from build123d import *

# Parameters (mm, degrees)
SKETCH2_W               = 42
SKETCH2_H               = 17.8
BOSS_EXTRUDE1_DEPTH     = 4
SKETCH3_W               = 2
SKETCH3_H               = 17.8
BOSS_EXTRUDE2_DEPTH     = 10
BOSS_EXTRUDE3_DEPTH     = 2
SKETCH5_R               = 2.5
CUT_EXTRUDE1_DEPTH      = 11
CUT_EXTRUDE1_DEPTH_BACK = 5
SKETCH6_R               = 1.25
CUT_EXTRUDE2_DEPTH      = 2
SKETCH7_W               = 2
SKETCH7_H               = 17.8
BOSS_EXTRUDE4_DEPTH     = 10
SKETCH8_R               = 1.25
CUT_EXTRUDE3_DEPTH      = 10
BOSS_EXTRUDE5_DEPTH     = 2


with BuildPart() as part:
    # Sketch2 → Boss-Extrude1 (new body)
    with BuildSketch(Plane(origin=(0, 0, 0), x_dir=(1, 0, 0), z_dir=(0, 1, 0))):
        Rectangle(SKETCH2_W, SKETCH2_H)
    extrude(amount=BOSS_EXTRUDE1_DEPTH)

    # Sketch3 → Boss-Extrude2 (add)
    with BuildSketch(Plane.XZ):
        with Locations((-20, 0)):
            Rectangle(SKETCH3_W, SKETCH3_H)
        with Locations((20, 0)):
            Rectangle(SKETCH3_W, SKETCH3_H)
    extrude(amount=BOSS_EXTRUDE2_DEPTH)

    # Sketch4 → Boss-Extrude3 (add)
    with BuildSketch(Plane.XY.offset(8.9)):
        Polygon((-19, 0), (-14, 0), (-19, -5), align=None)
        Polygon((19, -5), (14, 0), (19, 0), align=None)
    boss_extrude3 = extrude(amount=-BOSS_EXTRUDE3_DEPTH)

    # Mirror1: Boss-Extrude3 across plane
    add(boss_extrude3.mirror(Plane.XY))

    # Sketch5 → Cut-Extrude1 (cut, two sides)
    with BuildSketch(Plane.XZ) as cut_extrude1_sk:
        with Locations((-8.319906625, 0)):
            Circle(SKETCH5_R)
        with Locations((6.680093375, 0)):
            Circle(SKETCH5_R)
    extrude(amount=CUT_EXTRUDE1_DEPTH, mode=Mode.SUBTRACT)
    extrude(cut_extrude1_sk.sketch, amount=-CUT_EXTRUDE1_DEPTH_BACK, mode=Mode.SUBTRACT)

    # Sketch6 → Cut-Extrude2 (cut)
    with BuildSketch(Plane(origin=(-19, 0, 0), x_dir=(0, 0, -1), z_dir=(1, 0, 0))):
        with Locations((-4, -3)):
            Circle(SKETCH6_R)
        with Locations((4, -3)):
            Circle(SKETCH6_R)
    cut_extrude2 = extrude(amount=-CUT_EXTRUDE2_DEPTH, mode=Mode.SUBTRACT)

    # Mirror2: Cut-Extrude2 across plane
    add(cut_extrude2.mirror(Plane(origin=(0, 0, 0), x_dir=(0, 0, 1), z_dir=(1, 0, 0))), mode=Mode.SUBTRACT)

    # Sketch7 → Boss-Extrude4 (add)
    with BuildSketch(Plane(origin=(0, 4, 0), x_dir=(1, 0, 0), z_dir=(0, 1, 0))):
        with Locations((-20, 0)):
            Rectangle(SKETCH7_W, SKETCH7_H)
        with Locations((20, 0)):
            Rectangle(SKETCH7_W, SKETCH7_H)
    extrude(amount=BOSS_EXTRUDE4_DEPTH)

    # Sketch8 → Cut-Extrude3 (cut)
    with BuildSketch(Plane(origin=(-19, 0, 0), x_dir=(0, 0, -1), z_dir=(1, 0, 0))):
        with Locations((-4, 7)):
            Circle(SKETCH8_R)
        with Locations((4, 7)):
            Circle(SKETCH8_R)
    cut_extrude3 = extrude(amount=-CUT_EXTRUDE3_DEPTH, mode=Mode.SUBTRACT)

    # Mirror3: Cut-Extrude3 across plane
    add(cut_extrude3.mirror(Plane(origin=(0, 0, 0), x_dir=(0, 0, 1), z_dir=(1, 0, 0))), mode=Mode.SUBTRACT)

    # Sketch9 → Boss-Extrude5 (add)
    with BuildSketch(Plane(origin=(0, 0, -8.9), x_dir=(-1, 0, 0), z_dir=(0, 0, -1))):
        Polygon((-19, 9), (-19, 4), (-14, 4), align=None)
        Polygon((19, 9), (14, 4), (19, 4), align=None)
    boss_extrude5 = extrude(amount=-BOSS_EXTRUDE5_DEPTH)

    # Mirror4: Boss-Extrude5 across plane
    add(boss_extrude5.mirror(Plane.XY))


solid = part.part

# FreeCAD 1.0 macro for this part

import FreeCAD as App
import Part
import Sketcher
from FreeCAD import Vector

doc = App.newDocument("Part")
body = doc.addObject("PartDesign::Body", "Body")

sketch1 = body.newObject("Sketcher::SketchObject", "Sketch")
sketch1.AttachmentSupport = (doc.getObject("XZ_Plane"), [""])
sketch1.MapMode = "FlatFace"
sketch1.addGeometry(Part.LineSegment(Vector(-21, -9, 0), Vector(-21, 9, 0)), False)
sketch1.addGeometry(Part.LineSegment(Vector(-21, 9, 0), Vector(21, 9, 0)), False)
sketch1.addGeometry(Part.LineSegment(Vector(21, 9, 0), Vector(21, -9, 0)), False)
sketch1.addGeometry(Part.LineSegment(Vector(21, -9, 0), Vector(-21, -9, 0)), False)
sketch1.addConstraint(Sketcher.Constraint("Coincident", 0, 2, 1, 1))
sketch1.addConstraint(Sketcher.Constraint("Coincident", 1, 2, 2, 1))
sketch1.addConstraint(Sketcher.Constraint("Coincident", 2, 2, 3, 1))
sketch1.addConstraint(Sketcher.Constraint("Coincident", 3, 2, 0, 1))
sketch1.addConstraint(Sketcher.Constraint("Vertical", 0))
sketch1.addConstraint(Sketcher.Constraint("Horizontal", 1))
sketch1.addConstraint(Sketcher.Constraint("Vertical", 2))
sketch1.addConstraint(Sketcher.Constraint("Horizontal", 3))
sketch1.addConstraint(Sketcher.Constraint("Symmetric", 0, 2, 2, 2, -1, 1))
sketch1.addConstraint(Sketcher.Constraint("DistanceX", 1, 1, 1, 2, 42.0))
sketch1.addConstraint(Sketcher.Constraint("DistanceY", 0, 1, 0, 2, 17.8))
pad1 = body.newObject("PartDesign::Pad", "Pad")
pad1.Profile = sketch1
pad1.Length = 4
pad1.Reversed = True

sketch2 = body.newObject("Sketcher::SketchObject", "Sketch001")
sketch2.AttachmentSupport = (doc.getObject("XZ_Plane"), [""])
sketch2.MapMode = "FlatFace"
sketch2.addGeometry(Part.LineSegment(Vector(-21, 8.9, 0), Vector(-21, -8.9, 0)), False)
sketch2.addGeometry(Part.LineSegment(Vector(-21, -8.9, 0), Vector(-19, -8.9, 0)), False)
sketch2.addGeometry(Part.LineSegment(Vector(-19, -8.9, 0), Vector(-19, 8.9, 0)), False)
sketch2.addGeometry(Part.LineSegment(Vector(-19, 8.9, 0), Vector(-21, 8.9, 0)), False)
sketch2.addGeometry(Part.LineSegment(Vector(19, 8.9, 0), Vector(19, -8.9, 0)), False)
sketch2.addGeometry(Part.LineSegment(Vector(19, -8.9, 0), Vector(21, -8.9, 0)), False)
sketch2.addGeometry(Part.LineSegment(Vector(21, -8.9, 0), Vector(21, 8.9, 0)), False)
sketch2.addGeometry(Part.LineSegment(Vector(21, 8.9, 0), Vector(19, 8.9, 0)), False)
sketch2.addConstraint(Sketcher.Constraint("Coincident", 0, 2, 1, 1))
sketch2.addConstraint(Sketcher.Constraint("Coincident", 1, 2, 2, 1))
sketch2.addConstraint(Sketcher.Constraint("Coincident", 2, 2, 3, 1))
sketch2.addConstraint(Sketcher.Constraint("Coincident", 3, 2, 0, 1))
sketch2.addConstraint(Sketcher.Constraint("Coincident", 4, 2, 5, 1))
sketch2.addConstraint(Sketcher.Constraint("Coincident", 5, 2, 6, 1))
sketch2.addConstraint(Sketcher.Constraint("Coincident", 6, 2, 7, 1))
sketch2.addConstraint(Sketcher.Constraint("Coincident", 7, 2, 4, 1))
sketch2.addConstraint(Sketcher.Constraint("Vertical", 0))
sketch2.addConstraint(Sketcher.Constraint("Horizontal", 1))
sketch2.addConstraint(Sketcher.Constraint("Vertical", 2))
sketch2.addConstraint(Sketcher.Constraint("Horizontal", 3))
sketch2.addConstraint(Sketcher.Constraint("Vertical", 4))
sketch2.addConstraint(Sketcher.Constraint("Horizontal", 5))
sketch2.addConstraint(Sketcher.Constraint("Vertical", 6))
sketch2.addConstraint(Sketcher.Constraint("Horizontal", 7))
sketch2.addConstraint(Sketcher.Constraint("Symmetric", 2, 2, 4, 2, -1, 1))
sketch2.addConstraint(Sketcher.Constraint("Symmetric", 0, 2, 6, 2, -1, 1))
sketch2.addConstraint(Sketcher.Constraint("Horizontal", 1, 2, 4, 2))
sketch2.addConstraint(Sketcher.Constraint("DistanceX", 1, 1, 1, 2, 2.0))
sketch2.addConstraint(Sketcher.Constraint("DistanceY", 0, 2, 0, 1, 17.8))
sketch2.addConstraint(Sketcher.Constraint("DistanceX", 0, 2, -1, 1, 21.0))
pad2 = body.newObject("PartDesign::Pad", "Pad001")
pad2.Profile = sketch2
pad2.Length = 10

sketch3 = body.newObject("Sketcher::SketchObject", "Sketch002")
sketch3.AttachmentSupport = (doc.getObject("XY_Plane"), [""])
sketch3.MapMode = "FlatFace"
sketch3.AttachmentOffset = App.Placement(Vector(0, 0, 8.9), App.Rotation())
sketch3.addGeometry(Part.LineSegment(Vector(-14, 0, 0), Vector(-19, 0, 0)), False)
sketch3.addGeometry(Part.LineSegment(Vector(-19, 0, 0), Vector(-19, -5, 0)), False)
sketch3.addGeometry(Part.LineSegment(Vector(-19, -5, 0), Vector(-14, 0, 0)), False)
sketch3.addGeometry(Part.LineSegment(Vector(14, 0, 0), Vector(19, -5, 0)), False)
sketch3.addGeometry(Part.LineSegment(Vector(19, -5, 0), Vector(19, 0, 0)), False)
sketch3.addGeometry(Part.LineSegment(Vector(19, 0, 0), Vector(14, 0, 0)), False)
sketch3.addConstraint(Sketcher.Constraint("Coincident", 0, 2, 1, 1))
sketch3.addConstraint(Sketcher.Constraint("Coincident", 1, 2, 2, 1))
sketch3.addConstraint(Sketcher.Constraint("Coincident", 2, 2, 0, 1))
sketch3.addConstraint(Sketcher.Constraint("Coincident", 3, 2, 4, 1))
sketch3.addConstraint(Sketcher.Constraint("Coincident", 4, 2, 5, 1))
sketch3.addConstraint(Sketcher.Constraint("Coincident", 5, 2, 3, 1))
sketch3.addConstraint(Sketcher.Constraint("Horizontal", 0))
sketch3.addConstraint(Sketcher.Constraint("Vertical", 1))
sketch3.addConstraint(Sketcher.Constraint("Vertical", 4))
sketch3.addConstraint(Sketcher.Constraint("Horizontal", 5))
sketch3.addConstraint(Sketcher.Constraint("Symmetric", 0, 2, 4, 2, -1, 1))
sketch3.addConstraint(Sketcher.Constraint("Symmetric", 2, 2, 5, 2, -2))
sketch3.addConstraint(Sketcher.Constraint("Perpendicular", 2, 3))
sketch3.addConstraint(Sketcher.Constraint("Horizontal", 1, 2, 3, 2))
sketch3.addConstraint(Sketcher.Constraint("DistanceX", 0, 2, 0, 1, 5.0))
sketch3.addConstraint(Sketcher.Constraint("DistanceX", 0, 2, -1, 1, 19.0))
pad3 = body.newObject("PartDesign::Pad", "Pad002")
pad3.Profile = sketch3
pad3.Length = 2
pad3.Reversed = True
doc.recompute()

mirrored = body.newObject("PartDesign::Mirrored", "Mirrored")
mirrored.Originals = [pad3]
mirrored.MirrorPlane = (doc.getObject("XY_Plane"), [""])
body.Tip = mirrored

sketch4 = body.newObject("Sketcher::SketchObject", "Sketch003")
sketch4.AttachmentSupport = (doc.getObject("XZ_Plane"), [""])
sketch4.MapMode = "FlatFace"
sketch4.addGeometry(Part.Circle(Vector(-8.3, 0, 0), Vector(0, 0, 1), 2.5), False)
sketch4.addGeometry(Part.Circle(Vector(6.7, 0, 0), Vector(0, 0, 1), 2.5), False)
sketch4.addConstraint(Sketcher.Constraint("Equal", 0, 1))
sketch4.addConstraint(Sketcher.Constraint("PointOnObject", 0, 3, -1))
sketch4.addConstraint(Sketcher.Constraint("PointOnObject", 1, 3, -1))
sketch4.addConstraint(Sketcher.Constraint("Diameter", 0, 5.0))
sketch4.addConstraint(Sketcher.Constraint("DistanceX", 0, 3, 1, 3, 15.0))
sketch4.addConstraint(Sketcher.Constraint("DistanceX", 0, 3, -1, 1, 8.319907))
pocket1 = body.newObject("PartDesign::Pocket", "Pocket")
pocket1.Profile = sketch4
pocket1.Type = "ThroughAll"
pocket1.Midplane = True

sketch5 = body.newObject("Sketcher::SketchObject", "Sketch004")
sketch5.AttachmentSupport = (doc.getObject("YZ_Plane"), [""])
sketch5.MapMode = "FlatFace"
sketch5.AttachmentOffset = App.Placement(Vector(0, 0, -19), App.Rotation())
sketch5.addGeometry(Part.Circle(Vector(-3, 4, 0), Vector(0, 0, 1), 1.2), False)
sketch5.addGeometry(Part.Circle(Vector(-3, -4, 0), Vector(0, 0, 1), 1.2), False)
sketch5.addConstraint(Sketcher.Constraint("Equal", 0, 1))
sketch5.addConstraint(Sketcher.Constraint("Symmetric", 0, 3, 1, 3, -1))
sketch5.addConstraint(Sketcher.Constraint("Diameter", 0, 2.5))
sketch5.addConstraint(Sketcher.Constraint("DistanceX", 0, 3, -1, 1, 3.0))
sketch5.addConstraint(Sketcher.Constraint("DistanceY", -1, 1, 0, 3, 4.0))
pocket2 = body.newObject("PartDesign::Pocket", "Pocket001")
pocket2.Profile = sketch5
pocket2.Length = 2
doc.recompute()

mirrored2 = body.newObject("PartDesign::Mirrored", "Mirrored001")
mirrored2.Originals = [pocket2]
mirrored2.MirrorPlane = (doc.getObject("YZ_Plane"), [""])
body.Tip = mirrored2

sketch6 = body.newObject("Sketcher::SketchObject", "Sketch005")
sketch6.AttachmentSupport = (doc.getObject("XZ_Plane"), [""])
sketch6.MapMode = "FlatFace"
sketch6.AttachmentOffset = App.Placement(Vector(0, 0, -4), App.Rotation())
sketch6.addGeometry(Part.LineSegment(Vector(-21, -8.9, 0), Vector(-21, 8.9, 0)), False)
sketch6.addGeometry(Part.LineSegment(Vector(-21, 8.9, 0), Vector(-19, 8.9, 0)), False)
sketch6.addGeometry(Part.LineSegment(Vector(-19, 8.9, 0), Vector(-19, -8.9, 0)), False)
sketch6.addGeometry(Part.LineSegment(Vector(-19, -8.9, 0), Vector(-21, -8.9, 0)), False)
sketch6.addGeometry(Part.LineSegment(Vector(19, -8.9, 0), Vector(19, 8.9, 0)), False)
sketch6.addGeometry(Part.LineSegment(Vector(19, 8.9, 0), Vector(21, 8.9, 0)), False)
sketch6.addGeometry(Part.LineSegment(Vector(21, 8.9, 0), Vector(21, -8.9, 0)), False)
sketch6.addGeometry(Part.LineSegment(Vector(21, -8.9, 0), Vector(19, -8.9, 0)), False)
sketch6.addConstraint(Sketcher.Constraint("Coincident", 0, 2, 1, 1))
sketch6.addConstraint(Sketcher.Constraint("Coincident", 1, 2, 2, 1))
sketch6.addConstraint(Sketcher.Constraint("Coincident", 2, 2, 3, 1))
sketch6.addConstraint(Sketcher.Constraint("Coincident", 3, 2, 0, 1))
sketch6.addConstraint(Sketcher.Constraint("Coincident", 4, 2, 5, 1))
sketch6.addConstraint(Sketcher.Constraint("Coincident", 5, 2, 6, 1))
sketch6.addConstraint(Sketcher.Constraint("Coincident", 6, 2, 7, 1))
sketch6.addConstraint(Sketcher.Constraint("Coincident", 7, 2, 4, 1))
sketch6.addConstraint(Sketcher.Constraint("Vertical", 0))
sketch6.addConstraint(Sketcher.Constraint("Horizontal", 1))
sketch6.addConstraint(Sketcher.Constraint("Vertical", 2))
sketch6.addConstraint(Sketcher.Constraint("Horizontal", 3))
sketch6.addConstraint(Sketcher.Constraint("Vertical", 4))
sketch6.addConstraint(Sketcher.Constraint("Horizontal", 5))
sketch6.addConstraint(Sketcher.Constraint("Vertical", 6))
sketch6.addConstraint(Sketcher.Constraint("Horizontal", 7))
sketch6.addConstraint(Sketcher.Constraint("Symmetric", 2, 2, 4, 2, -1, 1))
sketch6.addConstraint(Sketcher.Constraint("Symmetric", 0, 2, 6, 2, -1, 1))
sketch6.addConstraint(Sketcher.Constraint("Horizontal", 1, 2, 4, 2))
sketch6.addConstraint(Sketcher.Constraint("DistanceX", 1, 1, 1, 2, 2.0))
sketch6.addConstraint(Sketcher.Constraint("DistanceY", 0, 1, 0, 2, 17.8))
sketch6.addConstraint(Sketcher.Constraint("DistanceX", 0, 2, -1, 1, 21.0))
pad4 = body.newObject("PartDesign::Pad", "Pad003")
pad4.Profile = sketch6
pad4.Length = 10
pad4.Reversed = True

sketch7 = body.newObject("Sketcher::SketchObject", "Sketch006")
sketch7.AttachmentSupport = (doc.getObject("YZ_Plane"), [""])
sketch7.MapMode = "FlatFace"
sketch7.AttachmentOffset = App.Placement(Vector(0, 0, -19), App.Rotation())
sketch7.addGeometry(Part.Circle(Vector(7, 4, 0), Vector(0, 0, 1), 1.2), False)
sketch7.addGeometry(Part.Circle(Vector(7, -4, 0), Vector(0, 0, 1), 1.2), False)
sketch7.addConstraint(Sketcher.Constraint("Equal", 0, 1))
sketch7.addConstraint(Sketcher.Constraint("Symmetric", 0, 3, 1, 3, -1))
sketch7.addConstraint(Sketcher.Constraint("Diameter", 0, 2.5))
sketch7.addConstraint(Sketcher.Constraint("DistanceX", -1, 1, 0, 3, 7.0))
sketch7.addConstraint(Sketcher.Constraint("DistanceY", -1, 1, 0, 3, 4.0))
pocket3 = body.newObject("PartDesign::Pocket", "Pocket002")
pocket3.Profile = sketch7
pocket3.Length = 10
doc.recompute()

mirrored3 = body.newObject("PartDesign::Mirrored", "Mirrored002")
mirrored3.Originals = [pocket3]
mirrored3.MirrorPlane = (doc.getObject("YZ_Plane"), [""])
body.Tip = mirrored3

sketch8 = body.newObject("Sketcher::SketchObject", "Sketch007")
sketch8.AttachmentSupport = (doc.getObject("XY_Plane"), [""])
sketch8.MapMode = "FlatFace"
sketch8.AttachmentOffset = App.Placement(Vector(0, 0, -8.9), App.Rotation())
sketch8.addGeometry(Part.LineSegment(Vector(19, 9, 0), Vector(19, 4, 0)), False)
sketch8.addGeometry(Part.LineSegment(Vector(19, 4, 0), Vector(14, 4, 0)), False)
sketch8.addGeometry(Part.LineSegment(Vector(14, 4, 0), Vector(19, 9, 0)), False)
sketch8.addGeometry(Part.LineSegment(Vector(-19, 9, 0), Vector(-14, 4, 0)), False)
sketch8.addGeometry(Part.LineSegment(Vector(-14, 4, 0), Vector(-19, 4, 0)), False)
sketch8.addGeometry(Part.LineSegment(Vector(-19, 4, 0), Vector(-19, 9, 0)), False)
sketch8.addConstraint(Sketcher.Constraint("Coincident", 0, 2, 1, 1))
sketch8.addConstraint(Sketcher.Constraint("Coincident", 1, 2, 2, 1))
sketch8.addConstraint(Sketcher.Constraint("Coincident", 2, 2, 0, 1))
sketch8.addConstraint(Sketcher.Constraint("Coincident", 3, 2, 4, 1))
sketch8.addConstraint(Sketcher.Constraint("Coincident", 4, 2, 5, 1))
sketch8.addConstraint(Sketcher.Constraint("Coincident", 5, 2, 3, 1))
sketch8.addConstraint(Sketcher.Constraint("Vertical", 0))
sketch8.addConstraint(Sketcher.Constraint("Horizontal", 1))
sketch8.addConstraint(Sketcher.Constraint("Horizontal", 4))
sketch8.addConstraint(Sketcher.Constraint("Vertical", 5))
sketch8.addConstraint(Sketcher.Constraint("Symmetric", 1, 2, 3, 2, -2))
sketch8.addConstraint(Sketcher.Constraint("Symmetric", 2, 2, 5, 2, -2))
sketch8.addConstraint(Sketcher.Constraint("Perpendicular", 2, 3))
sketch8.addConstraint(Sketcher.Constraint("DistanceX", 1, 2, 1, 1, 5.0))
sketch8.addConstraint(Sketcher.Constraint("DistanceX", -1, 1, 0, 2, 19.0))
sketch8.addConstraint(Sketcher.Constraint("DistanceY", -1, 1, 0, 2, 4.0))
pad5 = body.newObject("PartDesign::Pad", "Pad004")
pad5.Profile = sketch8
pad5.Length = 2
doc.recompute()

mirrored4 = body.newObject("PartDesign::Mirrored", "Mirrored003")
mirrored4.Originals = [pad5]
mirrored4.MirrorPlane = (doc.getObject("XY_Plane"), [""])
body.Tip = mirrored4

doc.recompute()
